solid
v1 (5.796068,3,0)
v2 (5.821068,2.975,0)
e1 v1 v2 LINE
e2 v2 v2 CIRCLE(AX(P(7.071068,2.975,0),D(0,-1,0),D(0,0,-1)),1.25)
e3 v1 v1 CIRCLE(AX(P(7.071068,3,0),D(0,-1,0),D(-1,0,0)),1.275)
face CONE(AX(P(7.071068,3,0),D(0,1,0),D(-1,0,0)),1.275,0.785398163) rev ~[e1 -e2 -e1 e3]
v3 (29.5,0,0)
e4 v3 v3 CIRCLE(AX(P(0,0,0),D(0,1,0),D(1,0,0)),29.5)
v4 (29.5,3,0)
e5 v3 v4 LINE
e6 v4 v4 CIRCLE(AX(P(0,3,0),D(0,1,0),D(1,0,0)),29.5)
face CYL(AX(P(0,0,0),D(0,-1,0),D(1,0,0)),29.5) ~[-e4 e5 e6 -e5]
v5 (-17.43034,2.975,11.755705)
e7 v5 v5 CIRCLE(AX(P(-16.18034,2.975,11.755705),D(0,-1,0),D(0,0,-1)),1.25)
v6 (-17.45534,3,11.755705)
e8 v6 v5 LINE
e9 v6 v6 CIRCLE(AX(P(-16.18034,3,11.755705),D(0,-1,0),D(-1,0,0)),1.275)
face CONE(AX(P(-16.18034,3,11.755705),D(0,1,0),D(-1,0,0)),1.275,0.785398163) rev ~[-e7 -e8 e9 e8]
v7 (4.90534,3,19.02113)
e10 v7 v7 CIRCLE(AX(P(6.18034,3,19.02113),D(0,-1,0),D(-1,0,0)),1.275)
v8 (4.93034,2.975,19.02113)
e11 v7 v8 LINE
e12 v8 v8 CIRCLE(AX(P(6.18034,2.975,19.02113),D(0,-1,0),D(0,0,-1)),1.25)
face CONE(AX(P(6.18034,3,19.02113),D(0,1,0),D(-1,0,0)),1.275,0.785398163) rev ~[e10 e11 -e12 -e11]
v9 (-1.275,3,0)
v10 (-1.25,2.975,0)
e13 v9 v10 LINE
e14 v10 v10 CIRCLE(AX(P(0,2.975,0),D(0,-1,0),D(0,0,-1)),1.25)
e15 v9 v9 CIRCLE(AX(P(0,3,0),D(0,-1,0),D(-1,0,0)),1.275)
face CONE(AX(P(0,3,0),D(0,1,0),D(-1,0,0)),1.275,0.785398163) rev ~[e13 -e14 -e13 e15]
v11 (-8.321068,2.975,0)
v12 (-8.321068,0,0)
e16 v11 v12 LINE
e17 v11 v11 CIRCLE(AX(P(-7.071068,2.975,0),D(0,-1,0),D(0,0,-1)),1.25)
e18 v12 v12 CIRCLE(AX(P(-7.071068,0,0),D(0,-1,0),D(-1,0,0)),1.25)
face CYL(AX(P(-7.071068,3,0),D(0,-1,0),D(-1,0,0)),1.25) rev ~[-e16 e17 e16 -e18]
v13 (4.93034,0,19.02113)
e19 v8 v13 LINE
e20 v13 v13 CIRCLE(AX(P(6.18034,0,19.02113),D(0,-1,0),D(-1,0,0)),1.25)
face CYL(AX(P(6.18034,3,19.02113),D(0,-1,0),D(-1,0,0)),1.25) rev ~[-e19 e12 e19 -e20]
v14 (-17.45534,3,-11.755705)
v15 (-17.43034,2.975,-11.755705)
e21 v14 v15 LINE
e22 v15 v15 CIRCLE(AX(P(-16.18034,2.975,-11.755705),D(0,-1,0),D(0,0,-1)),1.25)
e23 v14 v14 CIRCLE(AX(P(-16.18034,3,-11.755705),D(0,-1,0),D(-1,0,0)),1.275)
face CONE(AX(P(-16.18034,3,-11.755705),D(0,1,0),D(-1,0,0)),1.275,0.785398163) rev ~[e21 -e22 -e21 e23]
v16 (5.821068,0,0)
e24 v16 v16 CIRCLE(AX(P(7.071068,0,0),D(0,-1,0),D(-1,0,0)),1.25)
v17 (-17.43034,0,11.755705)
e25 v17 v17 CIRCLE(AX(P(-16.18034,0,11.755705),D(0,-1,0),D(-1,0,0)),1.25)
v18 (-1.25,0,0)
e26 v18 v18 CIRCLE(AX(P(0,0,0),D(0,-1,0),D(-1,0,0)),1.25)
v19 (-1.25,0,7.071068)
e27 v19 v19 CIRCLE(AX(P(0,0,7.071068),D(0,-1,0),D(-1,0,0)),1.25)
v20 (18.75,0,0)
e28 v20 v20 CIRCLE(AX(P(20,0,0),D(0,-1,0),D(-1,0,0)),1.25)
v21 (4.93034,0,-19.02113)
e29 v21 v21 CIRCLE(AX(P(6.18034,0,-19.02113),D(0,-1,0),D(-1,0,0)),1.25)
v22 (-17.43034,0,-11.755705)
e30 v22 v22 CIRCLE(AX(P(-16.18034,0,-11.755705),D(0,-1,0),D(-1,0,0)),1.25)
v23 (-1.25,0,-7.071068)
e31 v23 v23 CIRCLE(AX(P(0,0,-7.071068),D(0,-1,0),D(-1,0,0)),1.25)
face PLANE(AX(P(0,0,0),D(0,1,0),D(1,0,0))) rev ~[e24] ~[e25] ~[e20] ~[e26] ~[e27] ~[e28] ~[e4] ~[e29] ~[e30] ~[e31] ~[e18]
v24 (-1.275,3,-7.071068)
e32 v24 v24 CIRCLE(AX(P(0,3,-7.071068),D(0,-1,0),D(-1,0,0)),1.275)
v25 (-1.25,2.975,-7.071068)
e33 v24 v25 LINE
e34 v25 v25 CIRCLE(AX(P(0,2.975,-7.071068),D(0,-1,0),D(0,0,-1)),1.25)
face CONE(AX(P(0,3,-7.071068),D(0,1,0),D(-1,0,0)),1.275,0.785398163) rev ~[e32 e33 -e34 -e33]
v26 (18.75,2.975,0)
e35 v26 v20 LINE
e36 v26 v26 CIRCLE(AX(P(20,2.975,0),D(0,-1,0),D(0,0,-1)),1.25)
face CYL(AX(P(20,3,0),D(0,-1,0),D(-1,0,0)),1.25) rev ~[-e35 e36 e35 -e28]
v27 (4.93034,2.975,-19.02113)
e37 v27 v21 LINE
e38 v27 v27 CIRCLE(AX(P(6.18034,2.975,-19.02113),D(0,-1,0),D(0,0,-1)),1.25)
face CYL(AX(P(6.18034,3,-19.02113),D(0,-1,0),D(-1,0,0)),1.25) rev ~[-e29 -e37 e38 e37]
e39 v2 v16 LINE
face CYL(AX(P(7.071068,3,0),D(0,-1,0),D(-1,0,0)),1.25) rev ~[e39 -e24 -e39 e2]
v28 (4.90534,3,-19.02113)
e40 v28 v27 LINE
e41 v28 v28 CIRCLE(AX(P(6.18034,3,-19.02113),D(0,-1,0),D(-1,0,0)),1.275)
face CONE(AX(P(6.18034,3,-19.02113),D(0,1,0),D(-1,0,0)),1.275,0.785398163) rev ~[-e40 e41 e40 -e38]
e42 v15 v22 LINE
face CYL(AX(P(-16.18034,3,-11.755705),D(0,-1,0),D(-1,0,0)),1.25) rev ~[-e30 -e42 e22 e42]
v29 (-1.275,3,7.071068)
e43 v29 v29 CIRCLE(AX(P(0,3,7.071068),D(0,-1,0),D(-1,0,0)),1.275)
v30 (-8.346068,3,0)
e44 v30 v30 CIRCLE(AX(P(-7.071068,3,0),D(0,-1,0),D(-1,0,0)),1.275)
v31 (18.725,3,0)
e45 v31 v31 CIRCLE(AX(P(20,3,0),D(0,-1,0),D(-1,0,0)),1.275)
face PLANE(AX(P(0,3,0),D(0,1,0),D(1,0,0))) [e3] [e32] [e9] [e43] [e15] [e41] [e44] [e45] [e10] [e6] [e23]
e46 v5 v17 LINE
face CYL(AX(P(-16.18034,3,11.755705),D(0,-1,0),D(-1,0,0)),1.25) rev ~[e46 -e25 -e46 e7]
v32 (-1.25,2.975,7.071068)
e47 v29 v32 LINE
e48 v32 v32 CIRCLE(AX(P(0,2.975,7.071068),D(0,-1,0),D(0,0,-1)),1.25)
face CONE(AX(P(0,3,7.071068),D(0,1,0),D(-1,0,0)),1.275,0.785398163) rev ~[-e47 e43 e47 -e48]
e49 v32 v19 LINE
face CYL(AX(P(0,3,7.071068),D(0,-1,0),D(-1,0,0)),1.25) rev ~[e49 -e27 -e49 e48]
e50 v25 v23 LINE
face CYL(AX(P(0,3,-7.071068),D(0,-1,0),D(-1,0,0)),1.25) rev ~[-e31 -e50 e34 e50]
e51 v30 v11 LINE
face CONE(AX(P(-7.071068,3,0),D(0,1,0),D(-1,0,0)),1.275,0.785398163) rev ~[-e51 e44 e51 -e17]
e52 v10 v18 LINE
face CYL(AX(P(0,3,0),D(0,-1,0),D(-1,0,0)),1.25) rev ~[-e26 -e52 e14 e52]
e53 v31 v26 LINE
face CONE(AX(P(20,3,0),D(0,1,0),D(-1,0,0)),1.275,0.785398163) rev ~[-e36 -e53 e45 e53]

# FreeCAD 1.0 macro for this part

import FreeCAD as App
import Part
import Sketcher

V = App.Vector
Q = App.Units.Quantity

doc = App.newDocument("Part")
body = doc.addObject("PartDesign::Body", "Body")

# Sketch on XZ plane
sketch1 = body.newObject("Sketcher::SketchObject", "Sketch")
sketch1.AttachmentSupport = (doc.getObject("XZ_Plane"), [""])
sketch1.MapMode = "FlatFace"
sketch1.addGeometry(Part.Circle(V(0, 0, 0), V(0, 0, 1), 29.5), False)
sketch1.addConstraint([
    Sketcher.Constraint("Coincident", 0, 3, -1, 1),
    Sketcher.Constraint("Diameter", 0, Q("59 mm")),
])
pad1 = body.newObject("PartDesign::Pad", "Pad")
pad1.Profile = sketch1
pad1.Length = 3
pad1.Reversed = True

# Sketch on XZ plane
sketch2 = body.newObject("Sketcher::SketchObject", "Sketch001")
sketch2.AttachmentSupport = (doc.getObject("XZ_Plane"), [""])
sketch2.MapMode = "FlatFace"
sketch2.AttachmentOffset = App.Placement(V(0, 0, -3), App.Rotation())
sketch2.addGeometry([
    Part.Circle(V(6.18034, -19.02113, 0), V(0, 0, 1), 1.25),  # 0
    Part.Circle(V(20, 0, 0), V(0, 0, 1), 1.25),  # 1
    Part.Circle(V(6.18034, 19.02113, 0), V(0, 0, 1), 1.25),  # 2
    Part.Circle(V(-16.18034, 11.755705, 0), V(0, 0, 1), 1.25),  # 3
    Part.Circle(V(-16.18034, -11.755705, 0), V(0, 0, 1), 1.25),  # 4
], False)
sketch2.addConstraint([
    Sketcher.Constraint("Equal", 0, 1),
    Sketcher.Constraint("Equal", 1, 2),
    Sketcher.Constraint("Equal", 2, 3),
    Sketcher.Constraint("Equal", 3, 4),
    Sketcher.Constraint("Symmetric", 0, 3, 2, 3, -1),
    Sketcher.Constraint("Symmetric", 3, 3, 4, 3, -1),
    Sketcher.Constraint("PointOnObject", 1, 3, -1),
    Sketcher.Constraint("Diameter", 0, Q("2.5 mm")),
    Sketcher.Constraint("DistanceX", -1, 1, 1, 3, Q("20 mm")),
    Sketcher.Constraint("DistanceX", -1, 1, 0, 3, Q("6.18034 mm")),
    Sketcher.Constraint("DistanceY", 0, 3, -1, 1, Q("19.02113 mm")),
    Sketcher.Constraint("DistanceX", 3, 3, -1, 1, Q("16.18034 mm")),
    Sketcher.Constraint("DistanceY", 4, 3, 3, 3, Q("23.51141 mm")),
])
doc.recompute()
hole = body.newObject("PartDesign::Hole", "Hole")
hole.Profile = sketch2
hole.ThreadType = "None"
hole.Diameter = 2.5
hole.DepthType = "ThroughAll"
hole.HoleCutType = "Countersink"
hole.HoleCutDiameter = 2.55
hole.HoleCutCountersinkAngle = 90
hole.Reversed = True

# Sketch on XZ plane
sketch3 = body.newObject("Sketcher::SketchObject", "Sketch002")
sketch3.AttachmentSupport = (doc.getObject("XZ_Plane"), [""])
sketch3.MapMode = "FlatFace"
sketch3.AttachmentOffset = App.Placement(V(0, 0, -3), App.Rotation())
sketch3.addGeometry([
    Part.Circle(V(0, 0, 0), V(0, 0, 1), 1.25),  # 0
    Part.Circle(V(7.071068, 0, 0), V(0, 0, 1), 1.25),  # 1
    Part.Circle(V(0, 7.071068, 0), V(0, 0, 1), 1.25),  # 2
    Part.Circle(V(-7.071068, 0, 0), V(0, 0, 1), 1.25),  # 3
    Part.Circle(V(0, -7.071068, 0), V(0, 0, 1), 1.25),  # 4
], False)
sketch3.addConstraint([
    Sketcher.Constraint("Coincident", 0, 3, -1, 1),
    Sketcher.Constraint("Equal", 0, 1),
    Sketcher.Constraint("Equal", 1, 2),
    Sketcher.Constraint("Equal", 2, 3),
    Sketcher.Constraint("Equal", 3, 4),
    Sketcher.Constraint("Symmetric", 1, 3, 3, 3, -1, 1),
    Sketcher.Constraint("Symmetric", 2, 3, 4, 3, -1, 1),
    Sketcher.Constraint("PointOnObject", 1, 3, -1),
    Sketcher.Constraint("PointOnObject", 2, 3, -2),
    Sketcher.Constraint("Diameter", 0, Q("2.5 mm")),
    Sketcher.Constraint("DistanceX", -1, 1, 1, 3, Q("7.071068 mm")),
    Sketcher.Constraint("DistanceY", -1, 1, 2, 3, Q("7.071068 mm")),
])
doc.recompute()
hole2 = body.newObject("PartDesign::Hole", "Hole001")
hole2.Profile = sketch3
hole2.ThreadType = "None"
hole2.Diameter = 2.5
hole2.DepthType = "ThroughAll"
hole2.HoleCutType = "Countersink"
hole2.HoleCutDiameter = 2.55
hole2.HoleCutCountersinkAngle = 90
hole2.Reversed = True

doc.recompute()
